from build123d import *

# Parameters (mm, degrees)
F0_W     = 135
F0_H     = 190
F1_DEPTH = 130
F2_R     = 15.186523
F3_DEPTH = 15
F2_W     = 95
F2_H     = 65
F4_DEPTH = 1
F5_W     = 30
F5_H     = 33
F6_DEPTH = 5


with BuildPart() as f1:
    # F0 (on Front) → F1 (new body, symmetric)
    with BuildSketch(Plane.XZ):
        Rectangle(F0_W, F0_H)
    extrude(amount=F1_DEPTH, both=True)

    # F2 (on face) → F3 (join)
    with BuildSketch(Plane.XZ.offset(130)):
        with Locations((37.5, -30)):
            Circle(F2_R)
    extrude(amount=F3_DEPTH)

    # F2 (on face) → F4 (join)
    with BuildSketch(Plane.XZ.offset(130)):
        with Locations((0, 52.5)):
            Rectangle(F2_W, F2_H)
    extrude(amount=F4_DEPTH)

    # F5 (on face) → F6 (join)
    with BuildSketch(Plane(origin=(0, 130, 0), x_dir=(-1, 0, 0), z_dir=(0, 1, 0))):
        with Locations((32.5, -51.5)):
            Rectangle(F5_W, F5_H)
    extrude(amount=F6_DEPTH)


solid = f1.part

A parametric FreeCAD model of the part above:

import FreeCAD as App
import Part
import Sketcher

V = App.Vector
Q = App.Units.Quantity


def add_polygon(sketch, points):
    """Adds a closed chain of lines whose ends are joined by coincident constraints."""
    first, n = sketch.GeometryCount, len(points)
    for a, b in zip(points, points[1:] + points[:1]):
        sketch.addGeometry(Part.LineSegment(App.Vector(*a, 0), App.Vector(*b, 0)), False)
    for i in range(n):
        sketch.addConstraint(Sketcher.Constraint("Coincident", first + i, 2, first + (i + 1) % n, 1))

doc = App.newDocument("Part")
body = doc.addObject("PartDesign::Body", "Body")

# Sketch on XZ plane
sketch1 = body.newObject("Sketcher::SketchObject", "Sketch")
sketch1.AttachmentSupport = (doc.getObject("XZ_Plane"), [""])
sketch1.MapMode = "FlatFace"
add_polygon(sketch1, [(-68, 95), (-68, -95), (68, -95), (68, 95)])  # lines 0-3
sketch1.addConstraint(Sketcher.Constraint("Vertical", 0))
sketch1.addConstraint(Sketcher.Constraint("Horizontal", 1))
sketch1.addConstraint(Sketcher.Constraint("Vertical", 2))
sketch1.addConstraint(Sketcher.Constraint("Horizontal", 3))
sketch1.addConstraint(Sketcher.Constraint("Symmetric", 0, 2, 2, 2, -1, 1))
sketch1.addConstraint(Sketcher.Constraint("DistanceX", 1, 1, 1, 2, Q("135 mm")))
sketch1.addConstraint(Sketcher.Constraint("DistanceY", 0, 2, 0, 1, Q("190 mm")))
pad1 = body.newObject("PartDesign::Pad", "Pad")
pad1.Profile = sketch1
pad1.Length = 260
pad1.Midplane = True

# Sketch on XZ plane
sketch2 = body.newObject("Sketcher::SketchObject", "Sketch001")
sketch2.AttachmentSupport = (doc.getObject("XZ_Plane"), [""])
sketch2.MapMode = "FlatFace"
sketch2.AttachmentOffset = App.Placement(V(0, 0, 130), App.Rotation())
sketch2.addGeometry(Part.Circle(V(38, -30, 0), V(0, 0, 1), 15), False)
sketch2.addConstraint(Sketcher.Constraint("DistanceY", 0, 3, -1, 1, Q("30 mm")))
sketch2.addConstraint(Sketcher.Constraint("DistanceX", -1, 1, 0, 3, Q("37.5 mm")))
sketch2.addConstraint(Sketcher.Constraint("Diameter", 0, Q("30.373046 mm")))
pad2 = body.newObject("PartDesign::Pad", "Pad001")
pad2.Profile = sketch2
pad2.Length = 15

# Sketch on XZ plane
sketch3 = body.newObject("Sketcher::SketchObject", "Sketch002")
sketch3.AttachmentSupport = (doc.getObject("XZ_Plane"), [""])
sketch3.MapMode = "FlatFace"
sketch3.AttachmentOffset = App.Placement(V(0, 0, 130), App.Rotation())
add_polygon(sketch3, [(-48, 85), (-48, 20), (48, 20), (48, 85)])  # lines 0-3
sketch3.addConstraint(Sketcher.Constraint("Vertical", 0))
sketch3.addConstraint(Sketcher.Constraint("Horizontal", 1))
sketch3.addConstraint(Sketcher.Constraint("Vertical", 2))
sketch3.addConstraint(Sketcher.Constraint("Horizontal", 3))
sketch3.addConstraint(Sketcher.Constraint("DistanceX", 1, 1, 1, 2, Q("95 mm")))
sketch3.addConstraint(Sketcher.Constraint("DistanceY", 0, 2, 0, 1, Q("65 mm")))
sketch3.addConstraint(Sketcher.Constraint("DistanceY", -1, 1, 0, 2, Q("20 mm")))
sketch3.addConstraint(Sketcher.Constraint("DistanceX", 0, 2, -1, 1, Q("47.5 mm")))
pad3 = body.newObject("PartDesign::Pad", "Pad002")
pad3.Profile = sketch3
pad3.Length = 1

# Sketch on XZ plane
sketch4 = body.newObject("Sketcher::SketchObject", "Sketch003")
sketch4.AttachmentSupport = (doc.getObject("XZ_Plane"), [""])
sketch4.MapMode = "FlatFace"
sketch4.AttachmentOffset = App.Placement(V(0, 0, -130), App.Rotation())
add_polygon(sketch4, [(-18, -35), (-18, -68), (-48, -68), (-48, -35)])  # lines 0-3
sketch4.addConstraint(Sketcher.Constraint("Vertical", 0))
sketch4.addConstraint(Sketcher.Constraint("Horizontal", 1))
sketch4.addConstraint(Sketcher.Constraint("Vertical", 2))
sketch4.addConstraint(Sketcher.Constraint("Horizontal", 3))
sketch4.addConstraint(Sketcher.Constraint("DistanceX", 1, 2, 1, 1, Q("30 mm")))
sketch4.addConstraint(Sketcher.Constraint("DistanceY", 0, 2, 0, 1, Q("33 mm")))
sketch4.addConstraint(Sketcher.Constraint("DistanceY", 0, 2, -1, 1, Q("68 mm")))
sketch4.addConstraint(Sketcher.Constraint("DistanceX", 0, 2, -1, 1, Q("17.5 mm")))
pad4 = body.newObject("PartDesign::Pad", "Pad003")
pad4.Profile = sketch4
pad4.Length = 5
pad4.Reversed = True

doc.recompute()
